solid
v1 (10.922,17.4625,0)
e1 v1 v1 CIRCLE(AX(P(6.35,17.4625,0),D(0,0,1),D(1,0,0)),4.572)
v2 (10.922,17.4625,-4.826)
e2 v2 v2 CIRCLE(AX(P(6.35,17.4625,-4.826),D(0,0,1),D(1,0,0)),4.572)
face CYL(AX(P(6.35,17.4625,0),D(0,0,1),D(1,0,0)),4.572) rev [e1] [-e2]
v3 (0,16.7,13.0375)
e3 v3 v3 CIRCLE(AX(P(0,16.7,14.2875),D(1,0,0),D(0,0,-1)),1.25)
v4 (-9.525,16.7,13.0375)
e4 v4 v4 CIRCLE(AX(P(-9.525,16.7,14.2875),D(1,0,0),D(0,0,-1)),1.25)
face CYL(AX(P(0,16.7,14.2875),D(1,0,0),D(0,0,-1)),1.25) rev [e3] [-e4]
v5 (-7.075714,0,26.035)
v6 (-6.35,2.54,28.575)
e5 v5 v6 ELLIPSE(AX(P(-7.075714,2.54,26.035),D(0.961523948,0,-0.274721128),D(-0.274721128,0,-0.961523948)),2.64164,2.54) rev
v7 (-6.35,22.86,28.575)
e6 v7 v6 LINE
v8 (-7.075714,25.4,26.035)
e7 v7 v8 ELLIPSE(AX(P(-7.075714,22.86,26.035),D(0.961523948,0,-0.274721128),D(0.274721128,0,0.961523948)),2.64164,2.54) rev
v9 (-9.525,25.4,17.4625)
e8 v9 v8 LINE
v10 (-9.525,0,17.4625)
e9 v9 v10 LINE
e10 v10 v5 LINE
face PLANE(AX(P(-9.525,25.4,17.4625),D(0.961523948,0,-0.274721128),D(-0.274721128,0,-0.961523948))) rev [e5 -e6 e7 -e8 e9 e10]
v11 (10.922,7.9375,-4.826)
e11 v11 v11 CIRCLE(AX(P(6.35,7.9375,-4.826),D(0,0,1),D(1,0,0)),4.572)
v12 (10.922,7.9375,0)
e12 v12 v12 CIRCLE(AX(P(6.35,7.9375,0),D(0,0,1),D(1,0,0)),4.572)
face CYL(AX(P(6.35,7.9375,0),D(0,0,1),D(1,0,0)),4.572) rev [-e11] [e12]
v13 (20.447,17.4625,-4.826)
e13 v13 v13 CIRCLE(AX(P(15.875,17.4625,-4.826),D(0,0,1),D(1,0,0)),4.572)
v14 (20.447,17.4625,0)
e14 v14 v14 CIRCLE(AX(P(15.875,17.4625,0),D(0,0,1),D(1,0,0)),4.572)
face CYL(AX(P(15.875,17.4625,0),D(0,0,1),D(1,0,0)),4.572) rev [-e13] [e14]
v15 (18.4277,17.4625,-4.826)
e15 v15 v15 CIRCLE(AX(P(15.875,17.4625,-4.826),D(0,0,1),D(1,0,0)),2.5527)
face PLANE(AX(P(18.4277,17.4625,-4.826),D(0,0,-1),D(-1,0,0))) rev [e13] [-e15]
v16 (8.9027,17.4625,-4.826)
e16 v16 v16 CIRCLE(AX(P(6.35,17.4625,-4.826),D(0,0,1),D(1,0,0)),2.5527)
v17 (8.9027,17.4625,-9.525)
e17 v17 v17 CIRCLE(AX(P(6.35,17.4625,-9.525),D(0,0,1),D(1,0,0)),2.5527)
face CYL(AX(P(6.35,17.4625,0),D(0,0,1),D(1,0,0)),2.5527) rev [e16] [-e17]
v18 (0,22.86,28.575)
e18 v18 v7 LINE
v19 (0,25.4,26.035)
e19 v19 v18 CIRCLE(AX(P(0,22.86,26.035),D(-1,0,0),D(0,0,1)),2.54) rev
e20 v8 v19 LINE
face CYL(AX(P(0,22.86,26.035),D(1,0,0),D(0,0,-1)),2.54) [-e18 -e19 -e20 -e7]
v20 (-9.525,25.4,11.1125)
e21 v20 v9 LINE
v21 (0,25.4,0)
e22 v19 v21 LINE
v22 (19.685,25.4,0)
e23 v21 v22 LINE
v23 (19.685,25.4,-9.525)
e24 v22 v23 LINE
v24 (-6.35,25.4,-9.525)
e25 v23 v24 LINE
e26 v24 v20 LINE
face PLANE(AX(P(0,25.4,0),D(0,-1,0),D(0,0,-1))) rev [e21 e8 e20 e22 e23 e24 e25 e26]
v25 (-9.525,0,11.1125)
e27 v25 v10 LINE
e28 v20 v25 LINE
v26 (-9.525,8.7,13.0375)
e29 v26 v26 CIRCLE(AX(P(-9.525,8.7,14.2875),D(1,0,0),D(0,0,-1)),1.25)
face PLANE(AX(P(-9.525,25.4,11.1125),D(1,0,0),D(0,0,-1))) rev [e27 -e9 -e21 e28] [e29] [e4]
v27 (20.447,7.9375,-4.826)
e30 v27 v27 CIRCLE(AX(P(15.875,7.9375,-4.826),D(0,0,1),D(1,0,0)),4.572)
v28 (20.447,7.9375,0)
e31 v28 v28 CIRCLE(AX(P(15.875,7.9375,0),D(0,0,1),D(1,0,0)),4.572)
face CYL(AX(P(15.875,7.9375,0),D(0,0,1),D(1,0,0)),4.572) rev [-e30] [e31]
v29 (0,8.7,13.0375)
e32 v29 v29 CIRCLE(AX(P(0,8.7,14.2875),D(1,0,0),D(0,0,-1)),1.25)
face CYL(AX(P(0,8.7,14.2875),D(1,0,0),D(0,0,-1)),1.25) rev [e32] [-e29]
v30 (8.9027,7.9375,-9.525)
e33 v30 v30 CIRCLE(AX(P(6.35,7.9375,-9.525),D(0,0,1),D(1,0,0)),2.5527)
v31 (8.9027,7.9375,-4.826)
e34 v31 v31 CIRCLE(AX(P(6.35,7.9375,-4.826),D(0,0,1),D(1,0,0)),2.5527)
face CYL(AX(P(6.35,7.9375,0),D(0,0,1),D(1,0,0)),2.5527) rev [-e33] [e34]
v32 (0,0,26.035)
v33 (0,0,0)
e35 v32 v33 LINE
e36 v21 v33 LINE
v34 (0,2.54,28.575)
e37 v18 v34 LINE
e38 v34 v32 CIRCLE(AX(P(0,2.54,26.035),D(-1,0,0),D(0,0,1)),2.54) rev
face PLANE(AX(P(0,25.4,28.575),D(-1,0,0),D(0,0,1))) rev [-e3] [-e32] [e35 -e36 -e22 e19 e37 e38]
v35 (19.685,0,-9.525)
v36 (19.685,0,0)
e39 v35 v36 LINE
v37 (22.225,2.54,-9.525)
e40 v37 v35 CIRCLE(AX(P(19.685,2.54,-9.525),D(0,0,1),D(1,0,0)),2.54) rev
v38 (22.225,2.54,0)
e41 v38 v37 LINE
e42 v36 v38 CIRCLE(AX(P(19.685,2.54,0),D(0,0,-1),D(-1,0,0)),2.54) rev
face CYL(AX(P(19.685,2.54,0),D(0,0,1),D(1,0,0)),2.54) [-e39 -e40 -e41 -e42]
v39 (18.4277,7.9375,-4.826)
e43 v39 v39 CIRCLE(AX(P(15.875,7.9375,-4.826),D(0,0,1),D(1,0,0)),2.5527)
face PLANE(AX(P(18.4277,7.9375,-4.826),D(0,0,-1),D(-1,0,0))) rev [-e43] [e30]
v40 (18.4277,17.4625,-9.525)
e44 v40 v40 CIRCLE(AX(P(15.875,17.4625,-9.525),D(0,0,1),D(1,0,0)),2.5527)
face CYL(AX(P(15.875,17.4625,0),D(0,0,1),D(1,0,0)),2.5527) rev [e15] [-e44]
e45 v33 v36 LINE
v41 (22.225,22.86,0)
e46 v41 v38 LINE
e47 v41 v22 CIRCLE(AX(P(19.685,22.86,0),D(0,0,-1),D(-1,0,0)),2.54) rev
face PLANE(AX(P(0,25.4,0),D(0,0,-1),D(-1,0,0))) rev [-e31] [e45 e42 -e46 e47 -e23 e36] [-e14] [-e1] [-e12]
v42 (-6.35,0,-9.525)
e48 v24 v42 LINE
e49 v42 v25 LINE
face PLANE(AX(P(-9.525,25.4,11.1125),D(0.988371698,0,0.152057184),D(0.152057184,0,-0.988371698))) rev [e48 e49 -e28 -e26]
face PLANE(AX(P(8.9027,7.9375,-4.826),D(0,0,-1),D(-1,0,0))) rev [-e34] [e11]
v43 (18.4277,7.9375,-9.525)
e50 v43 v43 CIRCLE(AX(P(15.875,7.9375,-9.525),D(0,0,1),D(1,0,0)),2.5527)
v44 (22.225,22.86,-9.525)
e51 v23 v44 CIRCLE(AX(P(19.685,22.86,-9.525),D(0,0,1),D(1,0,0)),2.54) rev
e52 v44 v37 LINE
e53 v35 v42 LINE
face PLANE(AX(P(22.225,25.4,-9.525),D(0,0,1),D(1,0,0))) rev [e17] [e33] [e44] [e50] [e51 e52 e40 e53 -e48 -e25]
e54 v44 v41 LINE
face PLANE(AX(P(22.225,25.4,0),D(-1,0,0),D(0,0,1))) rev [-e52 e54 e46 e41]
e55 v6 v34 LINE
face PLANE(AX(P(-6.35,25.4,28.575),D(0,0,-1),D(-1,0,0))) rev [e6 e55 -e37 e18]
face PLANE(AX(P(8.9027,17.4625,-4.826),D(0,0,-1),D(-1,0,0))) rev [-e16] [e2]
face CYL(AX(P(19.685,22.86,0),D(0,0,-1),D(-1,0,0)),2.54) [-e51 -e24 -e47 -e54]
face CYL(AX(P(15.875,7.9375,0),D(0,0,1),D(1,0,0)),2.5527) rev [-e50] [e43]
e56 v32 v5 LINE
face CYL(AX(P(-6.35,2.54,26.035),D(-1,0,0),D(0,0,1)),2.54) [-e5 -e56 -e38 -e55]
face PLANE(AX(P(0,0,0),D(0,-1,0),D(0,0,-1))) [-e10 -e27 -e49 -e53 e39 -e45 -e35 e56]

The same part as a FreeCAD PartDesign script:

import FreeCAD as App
import Part
import Sketcher

V = App.Vector
Q = App.Units.Quantity


def edges_at(feature, points):
    """Names of the edges that pass closest to the given points."""
    edges = feature.Shape.Edges
    near = lambda p: min(range(len(edges)), key=lambda i: edges[i].distToShape(Part.Vertex(*p))[0])
    return sorted({f"Edge{near(p) + 1}" for p in points})


def add_polygon(sketch, points):
    """Adds a closed chain of lines whose ends are joined by coincident constraints."""
    first, n = sketch.GeometryCount, len(points)
    for a, b in zip(points, points[1:] + points[:1]):
        sketch.addGeometry(Part.LineSegment(App.Vector(*a, 0), App.Vector(*b, 0)), False)
    for i in range(n):
        sketch.addConstraint(Sketcher.Constraint("Coincident", first + i, 2, first + (i + 1) % n, 1))

doc = App.newDocument("Part")
body = doc.addObject("PartDesign::Body", "Body")

# Sketch on XZ plane
sketch1 = body.newObject("Sketcher::SketchObject", "Sketch")
sketch1.AttachmentSupport = (doc.getObject("XZ_Plane"), [""])
sketch1.MapMode = "FlatFace"
add_polygon(sketch1, [(0, 0), (22.225, 0), (22.225, -9.525), (-6.35, -9.525), (-9.525, 11.1125), (-9.525, 17.4625), (-6.35, 28.575), (0, 28.575)])  # lines 0-7
sketch1.addConstraint([
    Sketcher.Constraint("Horizontal", 0),
    Sketcher.Constraint("Vertical", 1),
    Sketcher.Constraint("Horizontal", 2),
    Sketcher.Constraint("Vertical", 4),
    Sketcher.Constraint("Horizontal", 6),
    Sketcher.Constraint("Vertical", 7),
    Sketcher.Constraint("Coincident", 7, 2, -1, 1),
    Sketcher.Constraint("Vertical", 2, 2, 5, 2),
    Sketcher.Constraint("Equal", 6, 4),
    Sketcher.Constraint("Equal", 2, 7),
    Sketcher.Constraint("DistanceX", 6, 1, 6, 2, Q("0.25 in")),
    Sketcher.Constraint("DistanceY", 2, 2, 5, 2, Q("1.5 in")),
    Sketcher.Constraint("DistanceX", 0, 1, 0, 2, Q("0.875 in")),
    Sketcher.Constraint("DistanceX", 3, 2, 0, 2, Q("1.25 in")),
    Sketcher.Constraint("DistanceY", -1, 1, 3, 2, Q("0.4375 in")),
])
pad1 = body.newObject("PartDesign::Pad", "Pad")
pad1.Profile = sketch1
pad1.Length = Q("1 in")
pad1.Reversed = True

# Sketch on XY plane
sketch2 = body.newObject("Sketcher::SketchObject", "Sketch001")
sketch2.AttachmentSupport = (doc.getObject("XY_Plane"), [""])
sketch2.MapMode = "FlatFace"
sketch2.addGeometry([
    Part.Circle(V(6.35, 17.4625, 0), V(0, 0, 1), 2.5527),
    Part.Circle(V(15.875, 7.9375, 0), V(0, 0, 1), 2.5527),
    Part.Circle(V(6.35, 7.9375, 0), V(0, 0, 1), 2.5527),
    Part.Circle(V(15.875, 17.4625, 0), V(0, 0, 1), 2.5527),
], False)
sketch2.addConstraint([
    Sketcher.Constraint("Equal", 0, 1),
    Sketcher.Constraint("Equal", 1, 2),
    Sketcher.Constraint("Equal", 2, 3),
    Sketcher.Constraint("Horizontal", 1, 3, 2, 3),
    Sketcher.Constraint("Horizontal", 0, 3, 3, 3),
    Sketcher.Constraint("Vertical", 0, 3, 2, 3),
    Sketcher.Constraint("Vertical", 1, 3, 3, 3),
    Sketcher.Constraint("Diameter", 0, Q("0.201 in")),
    Sketcher.Constraint("DistanceX", -1, 1, 0, 3, Q("0.25 in")),
    Sketcher.Constraint("DistanceY", -1, 1, 0, 3, Q("0.6875 in")),
    Sketcher.Constraint("DistanceX", -1, 1, 1, 3, Q("0.625 in")),
    Sketcher.Constraint("DistanceY", -1, 1, 1, 3, Q("0.3125 in")),
])
doc.recompute()
hole = body.newObject("PartDesign::Hole", "Hole")
hole.Profile = sketch2
hole.ThreadType = "None"
hole.Diameter = Q("0.201 in")
hole.DepthType = "ThroughAll"
hole.HoleCutType = "Counterbore"
hole.HoleCutDiameter = Q("0.36 in")
hole.HoleCutDepth = Q("0.19 in")

# Sketch on YZ plane
sketch3 = body.newObject("Sketcher::SketchObject", "Sketch002")
sketch3.AttachmentSupport = (doc.getObject("YZ_Plane"), [""])
sketch3.MapMode = "FlatFace"
sketch3.addGeometry([
    Part.Circle(V(16.7, 14.2875, 0), V(0, 0, 1), 1.25),
    Part.Circle(V(8.7, 14.2875, 0), V(0, 0, 1), 1.25),
], False)
sketch3.addConstraint([
    Sketcher.Constraint("Equal", 0, 1),
    Sketcher.Constraint("Horizontal", 0, 3, 1, 3),
    Sketcher.Constraint("Diameter", 0, Q("2.5 mm")),
    Sketcher.Constraint("DistanceY", -1, 1, 0, 3, Q("0.5625 in")),
    Sketcher.Constraint("DistanceX", -1, 1, 0, 3, Q("16.7 mm")),
    Sketcher.Constraint("DistanceX", -1, 1, 1, 3, Q("8.7 mm")),
])
doc.recompute()
hole2 = body.newObject("PartDesign::Hole", "Hole001")
hole2.Profile = sketch3
hole2.ThreadType = "None"
hole2.Diameter = 2.5
hole2.DepthType = "ThroughAll"
doc.recompute()

fillet = body.newObject("PartDesign::Fillet", "Fillet")
fillet.Base = (hole2, edges_at(hole2, [
    (22.225, 0, -4.763),
    (22.225, 25.4, -4.763),
    (-3.175, 25.4, 28.575),
    (-3.175, 0, 28.575),
]))
fillet.Radius = Q("0.1 in")

doc.recompute()
